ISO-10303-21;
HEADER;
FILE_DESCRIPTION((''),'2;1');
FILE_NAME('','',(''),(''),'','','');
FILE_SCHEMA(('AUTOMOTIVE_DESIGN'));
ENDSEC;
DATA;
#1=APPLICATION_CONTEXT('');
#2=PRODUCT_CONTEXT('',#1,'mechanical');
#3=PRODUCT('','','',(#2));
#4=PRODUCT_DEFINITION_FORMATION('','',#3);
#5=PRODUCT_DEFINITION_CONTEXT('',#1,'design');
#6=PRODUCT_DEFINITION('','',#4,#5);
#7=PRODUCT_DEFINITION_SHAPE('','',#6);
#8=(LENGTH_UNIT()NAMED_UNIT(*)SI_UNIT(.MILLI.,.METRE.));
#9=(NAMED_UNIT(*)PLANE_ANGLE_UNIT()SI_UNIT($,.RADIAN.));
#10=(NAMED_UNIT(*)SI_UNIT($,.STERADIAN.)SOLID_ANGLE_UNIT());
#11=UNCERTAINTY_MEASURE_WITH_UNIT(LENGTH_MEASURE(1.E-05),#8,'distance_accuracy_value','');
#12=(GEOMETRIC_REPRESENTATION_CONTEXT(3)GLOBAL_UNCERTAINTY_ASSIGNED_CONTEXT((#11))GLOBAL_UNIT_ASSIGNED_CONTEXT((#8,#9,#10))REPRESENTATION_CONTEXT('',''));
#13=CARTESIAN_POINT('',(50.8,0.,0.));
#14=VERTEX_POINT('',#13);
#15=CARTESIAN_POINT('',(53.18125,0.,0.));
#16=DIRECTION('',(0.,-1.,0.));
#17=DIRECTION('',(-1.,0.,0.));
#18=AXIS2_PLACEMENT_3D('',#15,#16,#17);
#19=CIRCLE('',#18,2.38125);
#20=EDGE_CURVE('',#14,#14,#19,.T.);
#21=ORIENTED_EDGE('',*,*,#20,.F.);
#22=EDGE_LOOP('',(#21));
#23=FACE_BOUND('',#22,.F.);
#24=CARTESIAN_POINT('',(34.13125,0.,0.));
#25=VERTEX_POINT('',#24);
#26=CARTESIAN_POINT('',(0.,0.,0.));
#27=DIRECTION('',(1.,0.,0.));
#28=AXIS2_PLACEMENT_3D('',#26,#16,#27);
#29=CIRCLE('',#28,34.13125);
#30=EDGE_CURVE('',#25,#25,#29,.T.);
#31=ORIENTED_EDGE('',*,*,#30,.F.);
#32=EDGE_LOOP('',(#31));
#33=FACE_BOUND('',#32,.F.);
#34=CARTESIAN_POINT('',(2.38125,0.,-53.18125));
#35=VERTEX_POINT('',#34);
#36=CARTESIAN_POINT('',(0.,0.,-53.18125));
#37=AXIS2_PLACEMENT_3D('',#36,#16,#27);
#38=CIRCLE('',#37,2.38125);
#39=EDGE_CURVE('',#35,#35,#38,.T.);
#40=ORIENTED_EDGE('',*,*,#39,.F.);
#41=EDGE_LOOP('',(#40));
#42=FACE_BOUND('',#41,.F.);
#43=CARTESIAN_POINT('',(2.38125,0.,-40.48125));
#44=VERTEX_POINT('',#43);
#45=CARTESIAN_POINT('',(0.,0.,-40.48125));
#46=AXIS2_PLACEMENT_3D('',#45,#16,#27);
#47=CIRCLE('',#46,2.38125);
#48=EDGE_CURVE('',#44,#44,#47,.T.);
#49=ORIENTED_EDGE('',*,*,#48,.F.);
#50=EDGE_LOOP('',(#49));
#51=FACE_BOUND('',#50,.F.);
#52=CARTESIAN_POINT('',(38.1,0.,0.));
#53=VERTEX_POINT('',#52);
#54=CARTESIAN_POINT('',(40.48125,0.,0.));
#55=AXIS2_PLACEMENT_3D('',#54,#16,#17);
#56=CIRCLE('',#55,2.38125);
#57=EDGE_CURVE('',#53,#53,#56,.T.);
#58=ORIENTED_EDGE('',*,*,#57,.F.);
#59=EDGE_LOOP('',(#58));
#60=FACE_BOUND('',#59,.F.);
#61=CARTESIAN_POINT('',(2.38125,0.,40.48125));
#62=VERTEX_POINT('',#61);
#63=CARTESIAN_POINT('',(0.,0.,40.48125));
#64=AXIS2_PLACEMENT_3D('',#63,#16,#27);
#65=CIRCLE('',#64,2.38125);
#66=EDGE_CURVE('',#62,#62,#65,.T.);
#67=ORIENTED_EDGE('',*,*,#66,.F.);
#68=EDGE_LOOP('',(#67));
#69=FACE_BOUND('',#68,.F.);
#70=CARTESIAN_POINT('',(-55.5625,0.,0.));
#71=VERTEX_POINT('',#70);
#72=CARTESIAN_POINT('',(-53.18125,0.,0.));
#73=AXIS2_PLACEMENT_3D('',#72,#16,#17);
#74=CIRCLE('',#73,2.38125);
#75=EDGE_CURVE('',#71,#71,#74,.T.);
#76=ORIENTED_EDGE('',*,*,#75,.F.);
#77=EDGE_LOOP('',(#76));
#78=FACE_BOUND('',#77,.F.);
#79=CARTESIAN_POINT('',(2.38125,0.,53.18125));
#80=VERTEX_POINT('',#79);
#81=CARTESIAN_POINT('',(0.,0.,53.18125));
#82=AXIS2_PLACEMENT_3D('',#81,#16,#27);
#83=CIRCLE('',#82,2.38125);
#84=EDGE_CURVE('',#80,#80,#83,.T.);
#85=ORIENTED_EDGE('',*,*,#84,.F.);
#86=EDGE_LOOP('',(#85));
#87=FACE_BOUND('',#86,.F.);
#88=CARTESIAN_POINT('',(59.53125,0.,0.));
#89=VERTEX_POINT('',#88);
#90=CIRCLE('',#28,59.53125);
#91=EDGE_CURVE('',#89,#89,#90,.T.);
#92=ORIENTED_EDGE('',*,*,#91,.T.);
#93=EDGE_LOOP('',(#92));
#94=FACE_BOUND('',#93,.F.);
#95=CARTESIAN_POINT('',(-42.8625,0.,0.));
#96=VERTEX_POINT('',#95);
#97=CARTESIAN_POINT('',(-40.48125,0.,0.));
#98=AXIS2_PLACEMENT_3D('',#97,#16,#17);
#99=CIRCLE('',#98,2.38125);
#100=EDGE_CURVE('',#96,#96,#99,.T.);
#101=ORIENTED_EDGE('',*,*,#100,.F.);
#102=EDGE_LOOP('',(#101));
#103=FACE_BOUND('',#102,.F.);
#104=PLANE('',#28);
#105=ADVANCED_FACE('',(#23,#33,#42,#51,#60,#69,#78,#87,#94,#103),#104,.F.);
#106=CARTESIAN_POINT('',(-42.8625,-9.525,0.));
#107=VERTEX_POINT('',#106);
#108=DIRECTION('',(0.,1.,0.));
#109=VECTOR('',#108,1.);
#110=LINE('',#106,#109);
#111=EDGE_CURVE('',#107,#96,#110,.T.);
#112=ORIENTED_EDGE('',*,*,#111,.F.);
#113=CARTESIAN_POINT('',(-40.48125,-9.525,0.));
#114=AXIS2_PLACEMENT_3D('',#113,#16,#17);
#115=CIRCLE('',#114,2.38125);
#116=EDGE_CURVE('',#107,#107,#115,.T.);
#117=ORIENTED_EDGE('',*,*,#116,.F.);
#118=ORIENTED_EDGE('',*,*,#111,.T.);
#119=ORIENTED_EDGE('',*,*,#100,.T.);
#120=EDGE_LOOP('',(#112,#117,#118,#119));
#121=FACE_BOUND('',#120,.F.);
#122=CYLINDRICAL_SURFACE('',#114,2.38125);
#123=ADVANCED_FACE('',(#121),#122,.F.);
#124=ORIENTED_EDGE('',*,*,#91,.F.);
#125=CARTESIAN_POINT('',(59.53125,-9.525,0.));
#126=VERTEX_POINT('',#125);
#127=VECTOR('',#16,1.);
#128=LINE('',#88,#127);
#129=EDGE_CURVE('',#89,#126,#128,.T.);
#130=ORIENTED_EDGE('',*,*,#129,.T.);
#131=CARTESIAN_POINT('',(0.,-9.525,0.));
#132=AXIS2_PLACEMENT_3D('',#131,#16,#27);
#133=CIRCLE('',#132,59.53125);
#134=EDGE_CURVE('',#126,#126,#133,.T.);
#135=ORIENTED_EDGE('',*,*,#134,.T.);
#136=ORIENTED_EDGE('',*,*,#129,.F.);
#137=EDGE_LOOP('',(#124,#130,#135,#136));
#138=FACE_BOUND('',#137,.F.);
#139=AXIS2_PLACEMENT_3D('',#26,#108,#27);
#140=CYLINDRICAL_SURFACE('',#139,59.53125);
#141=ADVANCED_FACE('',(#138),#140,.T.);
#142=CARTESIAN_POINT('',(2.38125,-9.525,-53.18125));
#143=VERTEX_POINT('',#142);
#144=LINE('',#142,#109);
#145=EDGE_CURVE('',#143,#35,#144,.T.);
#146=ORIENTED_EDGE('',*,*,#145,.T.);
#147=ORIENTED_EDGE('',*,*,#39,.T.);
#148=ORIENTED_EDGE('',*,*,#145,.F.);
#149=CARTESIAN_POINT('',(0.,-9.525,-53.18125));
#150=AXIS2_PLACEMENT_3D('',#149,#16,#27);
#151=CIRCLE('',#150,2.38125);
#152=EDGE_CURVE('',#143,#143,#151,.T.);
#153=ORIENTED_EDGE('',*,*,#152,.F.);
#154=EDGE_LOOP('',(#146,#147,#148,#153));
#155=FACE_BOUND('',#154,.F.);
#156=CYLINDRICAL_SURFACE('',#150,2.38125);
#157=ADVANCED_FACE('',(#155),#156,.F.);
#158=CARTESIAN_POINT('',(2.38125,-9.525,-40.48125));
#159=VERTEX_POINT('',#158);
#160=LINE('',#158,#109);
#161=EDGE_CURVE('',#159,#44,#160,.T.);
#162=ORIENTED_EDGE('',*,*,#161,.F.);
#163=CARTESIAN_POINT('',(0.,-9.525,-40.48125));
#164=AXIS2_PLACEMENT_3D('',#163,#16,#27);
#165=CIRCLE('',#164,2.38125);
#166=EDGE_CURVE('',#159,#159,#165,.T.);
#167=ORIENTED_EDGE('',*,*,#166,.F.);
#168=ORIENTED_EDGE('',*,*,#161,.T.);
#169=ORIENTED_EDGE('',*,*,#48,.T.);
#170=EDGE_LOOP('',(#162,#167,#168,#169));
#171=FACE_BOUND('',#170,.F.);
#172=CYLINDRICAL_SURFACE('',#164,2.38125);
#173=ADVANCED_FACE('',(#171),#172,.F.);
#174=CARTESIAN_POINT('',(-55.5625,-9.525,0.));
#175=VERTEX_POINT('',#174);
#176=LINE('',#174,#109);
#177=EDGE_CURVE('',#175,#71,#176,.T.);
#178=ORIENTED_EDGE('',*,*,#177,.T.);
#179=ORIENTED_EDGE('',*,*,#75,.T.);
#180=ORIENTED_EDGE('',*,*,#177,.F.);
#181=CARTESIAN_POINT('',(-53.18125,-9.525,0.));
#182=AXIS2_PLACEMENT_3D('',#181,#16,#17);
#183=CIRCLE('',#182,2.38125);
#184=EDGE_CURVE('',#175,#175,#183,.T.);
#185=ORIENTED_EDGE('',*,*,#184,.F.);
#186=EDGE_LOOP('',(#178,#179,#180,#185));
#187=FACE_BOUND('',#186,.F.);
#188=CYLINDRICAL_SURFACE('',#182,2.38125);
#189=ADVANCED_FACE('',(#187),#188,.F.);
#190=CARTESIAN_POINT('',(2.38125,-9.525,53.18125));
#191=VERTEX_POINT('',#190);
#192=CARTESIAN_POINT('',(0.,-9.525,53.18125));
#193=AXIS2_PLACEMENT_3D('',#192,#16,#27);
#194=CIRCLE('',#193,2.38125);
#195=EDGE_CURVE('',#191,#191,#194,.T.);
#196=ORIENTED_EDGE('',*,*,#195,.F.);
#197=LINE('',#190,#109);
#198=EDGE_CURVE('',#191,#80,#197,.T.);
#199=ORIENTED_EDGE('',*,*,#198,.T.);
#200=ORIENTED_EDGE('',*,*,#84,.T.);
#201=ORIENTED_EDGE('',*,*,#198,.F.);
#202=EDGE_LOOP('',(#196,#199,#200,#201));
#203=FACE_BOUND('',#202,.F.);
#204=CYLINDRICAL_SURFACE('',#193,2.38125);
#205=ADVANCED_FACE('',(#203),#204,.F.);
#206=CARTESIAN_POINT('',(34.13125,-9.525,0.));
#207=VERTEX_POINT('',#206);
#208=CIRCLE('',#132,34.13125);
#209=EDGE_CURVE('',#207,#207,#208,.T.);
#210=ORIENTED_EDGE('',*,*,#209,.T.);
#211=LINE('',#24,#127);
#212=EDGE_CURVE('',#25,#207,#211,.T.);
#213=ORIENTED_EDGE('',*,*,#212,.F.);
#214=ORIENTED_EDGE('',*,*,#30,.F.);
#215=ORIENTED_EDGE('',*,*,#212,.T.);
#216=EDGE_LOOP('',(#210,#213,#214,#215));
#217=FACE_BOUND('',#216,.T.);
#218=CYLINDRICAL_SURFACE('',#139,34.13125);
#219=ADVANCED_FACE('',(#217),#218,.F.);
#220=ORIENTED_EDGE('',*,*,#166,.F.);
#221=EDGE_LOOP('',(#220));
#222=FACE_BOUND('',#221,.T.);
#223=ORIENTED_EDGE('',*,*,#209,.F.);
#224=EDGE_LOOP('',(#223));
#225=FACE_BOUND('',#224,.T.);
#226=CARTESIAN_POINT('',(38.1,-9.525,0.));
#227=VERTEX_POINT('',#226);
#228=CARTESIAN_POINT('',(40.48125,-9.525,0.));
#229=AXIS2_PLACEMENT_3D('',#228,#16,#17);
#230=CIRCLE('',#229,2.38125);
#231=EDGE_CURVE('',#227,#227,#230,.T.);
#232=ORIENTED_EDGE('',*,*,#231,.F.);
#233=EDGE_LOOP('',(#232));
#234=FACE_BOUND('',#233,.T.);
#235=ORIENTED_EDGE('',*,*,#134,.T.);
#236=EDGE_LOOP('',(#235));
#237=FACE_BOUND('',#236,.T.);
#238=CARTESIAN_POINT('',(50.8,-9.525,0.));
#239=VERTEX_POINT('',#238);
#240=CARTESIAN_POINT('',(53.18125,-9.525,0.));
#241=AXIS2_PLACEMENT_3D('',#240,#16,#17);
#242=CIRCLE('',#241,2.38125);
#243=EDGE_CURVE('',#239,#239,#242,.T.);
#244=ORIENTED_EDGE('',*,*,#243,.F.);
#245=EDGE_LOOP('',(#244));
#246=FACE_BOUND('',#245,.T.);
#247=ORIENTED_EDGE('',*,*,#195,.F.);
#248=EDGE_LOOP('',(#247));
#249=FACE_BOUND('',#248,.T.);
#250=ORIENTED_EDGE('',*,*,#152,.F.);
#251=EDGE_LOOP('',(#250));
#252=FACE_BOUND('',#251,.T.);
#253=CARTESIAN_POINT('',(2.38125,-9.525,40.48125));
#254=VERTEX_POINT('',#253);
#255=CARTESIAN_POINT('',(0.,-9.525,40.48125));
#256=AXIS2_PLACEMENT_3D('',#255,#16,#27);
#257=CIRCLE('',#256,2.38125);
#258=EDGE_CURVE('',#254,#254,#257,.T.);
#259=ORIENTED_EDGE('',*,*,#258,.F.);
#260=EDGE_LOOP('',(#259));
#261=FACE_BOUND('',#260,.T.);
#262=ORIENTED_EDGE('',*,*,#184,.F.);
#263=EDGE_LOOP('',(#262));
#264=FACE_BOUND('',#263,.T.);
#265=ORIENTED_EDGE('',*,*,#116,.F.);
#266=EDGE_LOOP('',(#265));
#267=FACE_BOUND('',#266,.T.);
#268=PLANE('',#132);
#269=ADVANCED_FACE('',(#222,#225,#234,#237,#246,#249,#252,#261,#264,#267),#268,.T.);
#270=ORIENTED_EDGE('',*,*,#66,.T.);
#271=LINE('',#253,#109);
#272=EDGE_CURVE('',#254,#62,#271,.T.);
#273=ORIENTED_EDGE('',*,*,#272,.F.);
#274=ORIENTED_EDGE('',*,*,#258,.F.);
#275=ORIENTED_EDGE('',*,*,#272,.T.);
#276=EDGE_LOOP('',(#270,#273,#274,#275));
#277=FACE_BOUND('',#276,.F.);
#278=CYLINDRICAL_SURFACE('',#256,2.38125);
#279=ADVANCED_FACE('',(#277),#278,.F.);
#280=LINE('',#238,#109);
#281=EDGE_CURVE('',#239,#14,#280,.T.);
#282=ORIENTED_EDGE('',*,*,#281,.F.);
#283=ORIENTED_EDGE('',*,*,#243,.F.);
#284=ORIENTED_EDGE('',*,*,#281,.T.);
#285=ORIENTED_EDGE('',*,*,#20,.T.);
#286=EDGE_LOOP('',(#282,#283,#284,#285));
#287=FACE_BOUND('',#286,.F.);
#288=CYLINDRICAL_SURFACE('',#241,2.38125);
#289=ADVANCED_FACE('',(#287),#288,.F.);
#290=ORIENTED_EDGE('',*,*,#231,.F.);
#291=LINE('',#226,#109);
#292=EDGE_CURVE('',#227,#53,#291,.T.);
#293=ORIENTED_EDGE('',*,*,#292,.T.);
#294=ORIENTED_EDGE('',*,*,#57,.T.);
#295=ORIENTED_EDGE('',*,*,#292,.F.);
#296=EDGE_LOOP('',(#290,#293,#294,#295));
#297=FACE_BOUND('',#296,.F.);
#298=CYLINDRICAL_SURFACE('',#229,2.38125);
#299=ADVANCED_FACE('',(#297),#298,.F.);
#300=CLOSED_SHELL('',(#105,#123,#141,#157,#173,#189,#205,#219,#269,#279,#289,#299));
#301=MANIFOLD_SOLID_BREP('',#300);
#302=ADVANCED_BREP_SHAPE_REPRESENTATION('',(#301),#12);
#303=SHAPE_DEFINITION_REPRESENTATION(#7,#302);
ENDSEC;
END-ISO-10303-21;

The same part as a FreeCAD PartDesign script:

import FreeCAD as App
import Part
import Sketcher

V = App.Vector
Q = App.Units.Quantity

doc = App.newDocument("Part")
body = doc.addObject("PartDesign::Body", "Body")

# Sketch on XZ plane
sketch1 = doc.addObject("Sketcher::SketchObject", "Sketch")
body.addObject(sketch1)
sketch1.AttachmentSupport = (doc.XZ_Plane, [""])
sketch1.MapMode = "FlatFace"
sketch1.addGeometry([
    Part.Circle(V(0, 0, 0), V(0, 0, 1), 60),
    Part.Circle(V(0, 0, 0), V(0, 0, 1), 34),
], False)
sketch1.addConstraint([
    Sketcher.Constraint("Coincident", 0, 3, -1, 1),
    Sketcher.Constraint("Coincident", 1, 3, -1, 1),
    Sketcher.Constraint("Diameter", 0, Q("4.6875 in")),
    Sketcher.Constraint("Diameter", 1, Q("2.6875 in")),
])
pad1 = doc.addObject("PartDesign::Pad", "Pad")
body.addObject(pad1)
pad1.Profile = sketch1
pad1.Length = Q("0.375 in")

# Sketch on XZ plane
sketch2 = doc.addObject("Sketcher::SketchObject", "Sketch001")
body.addObject(sketch2)
sketch2.AttachmentSupport = (doc.XZ_Plane, [""])
sketch2.MapMode = "FlatFace"
sketch2.AttachmentOffset = App.Placement(V(0, 0, 0.375 * 25.4), App.Rotation())
sketch2.addGeometry([
    Part.Circle(V(40.5, 0, 0), V(0, 0, 1), 2.4),  # 0
    Part.Circle(V(53.2, 0, 0), V(0, 0, 1), 2.4),  # 1
    Part.Circle(V(0, -40.5, 0), V(0, 0, 1), 2.4),  # 2
    Part.Circle(V(0, -53.2, 0), V(0, 0, 1), 2.4),  # 3
    Part.Circle(V(-40.5, 0, 0), V(0, 0, 1), 2.4),  # 4
    Part.Circle(V(-53.2, 0, 0), V(0, 0, 1), 2.4),  # 5
    Part.Circle(V(0, 53.2, 0), V(0, 0, 1), 2.4),  # 6
    Part.Circle(V(0, 40.5, 0), V(0, 0, 1), 2.4),  # 7
], False)
sketch2.addConstraint([
    Sketcher.Constraint("Equal", 0, 1),
    Sketcher.Constraint("Equal", 1, 2),
    Sketcher.Constraint("Equal", 2, 3),
    Sketcher.Constraint("Equal", 3, 4),
    Sketcher.Constraint("Equal", 4, 5),
    Sketcher.Constraint("Equal", 5, 6),
    Sketcher.Constraint("Equal", 6, 7),
    Sketcher.Constraint("Symmetric", 0, 3, 4, 3, -1, 1),
    Sketcher.Constraint("Symmetric", 1, 3, 5, 3, -1, 1),
    Sketcher.Constraint("Symmetric", 3, 3, 6, 3, -1, 1),
    Sketcher.Constraint("Symmetric", 2, 3, 7, 3, -1, 1),
    Sketcher.Constraint("PointOnObject", 0, 3, -1),
    Sketcher.Constraint("PointOnObject", 1, 3, -1),
    Sketcher.Constraint("PointOnObject", 2, 3, -2),
    Sketcher.Constraint("PointOnObject", 3, 3, -2),
    Sketcher.Constraint("Diameter", 0, Q("0.1875 in")),
    Sketcher.Constraint("DistanceX", 0, 3, 1, 3, Q("0.5 in")),
    Sketcher.Constraint("DistanceY", 3, 3, 2, 3, Q("0.5 in")),
    Sketcher.Constraint("DistanceX", -1, 1, 0, 3, Q("1.59375 in")),
    Sketcher.Constraint("DistanceY", 2, 3, -1, 1, Q("1.59375 in")),
])
pocket1 = doc.addObject("PartDesign::Pocket", "Pocket")
body.addObject(pocket1)
pocket1.Profile = sketch2
pocket1.Length = Q("1 in")

doc.recompute()
